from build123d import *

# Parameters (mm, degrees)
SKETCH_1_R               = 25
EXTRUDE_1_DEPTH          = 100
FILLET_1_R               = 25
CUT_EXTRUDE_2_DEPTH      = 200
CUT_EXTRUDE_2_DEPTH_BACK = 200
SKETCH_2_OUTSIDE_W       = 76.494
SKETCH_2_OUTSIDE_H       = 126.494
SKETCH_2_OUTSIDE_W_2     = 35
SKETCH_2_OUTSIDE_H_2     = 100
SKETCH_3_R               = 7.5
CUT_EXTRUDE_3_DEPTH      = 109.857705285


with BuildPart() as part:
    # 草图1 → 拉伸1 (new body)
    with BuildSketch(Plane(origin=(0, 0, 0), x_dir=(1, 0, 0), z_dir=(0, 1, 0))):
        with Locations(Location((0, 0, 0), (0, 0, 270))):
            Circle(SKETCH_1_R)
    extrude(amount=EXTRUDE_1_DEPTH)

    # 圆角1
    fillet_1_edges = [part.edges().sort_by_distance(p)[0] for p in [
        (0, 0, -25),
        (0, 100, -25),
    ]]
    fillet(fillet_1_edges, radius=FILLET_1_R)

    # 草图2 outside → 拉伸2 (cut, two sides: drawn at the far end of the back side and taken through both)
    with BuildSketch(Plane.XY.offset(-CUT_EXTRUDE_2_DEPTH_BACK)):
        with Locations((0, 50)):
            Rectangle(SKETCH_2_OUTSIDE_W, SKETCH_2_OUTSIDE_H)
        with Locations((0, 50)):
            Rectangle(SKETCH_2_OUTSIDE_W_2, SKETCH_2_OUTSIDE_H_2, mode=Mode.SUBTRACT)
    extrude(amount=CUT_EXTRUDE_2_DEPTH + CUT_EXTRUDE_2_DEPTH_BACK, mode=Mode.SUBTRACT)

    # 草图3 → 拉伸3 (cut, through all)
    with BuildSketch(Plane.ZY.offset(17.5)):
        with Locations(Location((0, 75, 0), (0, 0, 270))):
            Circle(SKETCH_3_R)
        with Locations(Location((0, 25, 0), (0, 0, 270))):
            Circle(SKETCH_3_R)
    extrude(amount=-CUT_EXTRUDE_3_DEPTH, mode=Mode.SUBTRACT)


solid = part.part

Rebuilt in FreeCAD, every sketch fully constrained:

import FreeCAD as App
import Part
import Sketcher
from FreeCAD import Vector
Q = App.Units.Quantity


def edges_at(feature, points):
    """Names of the edges that pass closest to the given points."""
    edges = feature.Shape.Edges
    near = lambda p: min(range(len(edges)), key=lambda i: edges[i].distToShape(Part.Vertex(*p))[0])
    return sorted({f"Edge{near(p) + 1}" for p in points})

doc = App.newDocument("Part")
body = doc.addObject("PartDesign::Body", "Body")

# Sketch on XZ plane
sketch1 = body.newObject("Sketcher::SketchObject", "Sketch")
sketch1.AttachmentSupport = (doc.getObject("XZ_Plane"), [""])
sketch1.MapMode = "FlatFace"
sketch1.addGeometry(Part.Circle(Vector(0, 0, 0), Vector(0, 0, 1), 25), False)
sketch1.addConstraint(Sketcher.Constraint("Coincident", 0, 3, -1, 1))
sketch1.addConstraint(Sketcher.Constraint("Diameter", 0, Q("50 mm")))
pad1 = body.newObject("PartDesign::Pad", "Pad")
pad1.Profile = sketch1
pad1.Length = 100
pad1.Reversed = True
doc.recompute()

fillet = body.newObject("PartDesign::Fillet", "Fillet")
fillet.Base = (pad1, edges_at(pad1, [(0, 0, -25), (0, 100, -25)]))
fillet.Radius = 25

# Sketch on XY plane
sketch2 = body.newObject("Sketcher::SketchObject", "Sketch001")
sketch2.AttachmentSupport = (doc.getObject("XY_Plane"), [""])
sketch2.MapMode = "FlatFace"
sketch2.addGeometry(Part.LineSegment(Vector(-38.247, 113.247, 0), Vector(-38.247, -13.247, 0)), False)
sketch2.addGeometry(Part.LineSegment(Vector(-38.247, -13.247, 0), Vector(38.247, -13.247, 0)), False)
sketch2.addGeometry(Part.LineSegment(Vector(38.247, -13.247, 0), Vector(38.247, 113.247, 0)), False)
sketch2.addGeometry(Part.LineSegment(Vector(38.247, 113.247, 0), Vector(-38.247, 113.247, 0)), False)
sketch2.addGeometry(Part.LineSegment(Vector(17.5, 0, 0), Vector(-17.5, 0, 0)), False)
sketch2.addGeometry(Part.LineSegment(Vector(-17.5, 0, 0), Vector(-17.5, 100, 0)), False)
sketch2.addGeometry(Part.LineSegment(Vector(-17.5, 100, 0), Vector(17.5, 100, 0)), False)
sketch2.addGeometry(Part.LineSegment(Vector(17.5, 100, 0), Vector(17.5, 0, 0)), False)
sketch2.addConstraint(Sketcher.Constraint("Coincident", 0, 2, 1, 1))
sketch2.addConstraint(Sketcher.Constraint("Coincident", 1, 2, 2, 1))
sketch2.addConstraint(Sketcher.Constraint("Coincident", 2, 2, 3, 1))
sketch2.addConstraint(Sketcher.Constraint("Coincident", 3, 2, 0, 1))
sketch2.addConstraint(Sketcher.Constraint("Coincident", 4, 2, 5, 1))
sketch2.addConstraint(Sketcher.Constraint("Coincident", 5, 2, 6, 1))
sketch2.addConstraint(Sketcher.Constraint("Coincident", 6, 2, 7, 1))
sketch2.addConstraint(Sketcher.Constraint("Coincident", 7, 2, 4, 1))
sketch2.addConstraint(Sketcher.Constraint("Vertical", 0))
sketch2.addConstraint(Sketcher.Constraint("Horizontal", 1))
sketch2.addConstraint(Sketcher.Constraint("Vertical", 2))
sketch2.addConstraint(Sketcher.Constraint("Horizontal", 3))
sketch2.addConstraint(Sketcher.Constraint("Horizontal", 4))
sketch2.addConstraint(Sketcher.Constraint("Vertical", 5))
sketch2.addConstraint(Sketcher.Constraint("Horizontal", 6))
sketch2.addConstraint(Sketcher.Constraint("Vertical", 7))
sketch2.addConstraint(Sketcher.Constraint("Symmetric", 4, 2, 7, 2, -1, 1))
sketch2.addConstraint(Sketcher.Constraint("DistanceX", 4, 2, 4, 1, Q("35 mm")))
sketch2.addConstraint(Sketcher.Constraint("DistanceY", 5, 1, 5, 2, Q("100 mm")))
sketch2.addConstraint(Sketcher.Constraint("DistanceX", 1, 1, 1, 2, Q("76.494 mm")))
sketch2.addConstraint(Sketcher.Constraint("DistanceY", 0, 2, 0, 1, Q("126.494 mm")))
sketch2.addConstraint(Sketcher.Constraint("DistanceX", 0, 2, -1, 1, Q("38.247 mm")))
sketch2.addConstraint(Sketcher.Constraint("DistanceY", 0, 2, -1, 1, Q("13.247 mm")))
pocket1 = body.newObject("PartDesign::Pocket", "Pocket")
pocket1.Profile = sketch2
pocket1.Type = "ThroughAll"
pocket1.Midplane = True

# Sketch on YZ plane
sketch3 = body.newObject("Sketcher::SketchObject", "Sketch002")
sketch3.AttachmentSupport = (doc.getObject("YZ_Plane"), [""])
sketch3.MapMode = "FlatFace"
sketch3.AttachmentOffset = App.Placement(Vector(0, 0, -17.5), App.Rotation())
sketch3.addGeometry(Part.Circle(Vector(75, 0, 0), Vector(0, 0, 1), 7.5), False)
sketch3.addGeometry(Part.Circle(Vector(25, 0, 0), Vector(0, 0, 1), 7.5), False)
sketch3.addConstraint(Sketcher.Constraint("Equal", 0, 1))
sketch3.addConstraint(Sketcher.Constraint("PointOnObject", 0, 3, -1))
sketch3.addConstraint(Sketcher.Constraint("PointOnObject", 1, 3, -1))
sketch3.addConstraint(Sketcher.Constraint("Diameter", 0, Q("15 mm")))
sketch3.addConstraint(Sketcher.Constraint("DistanceX", -1, 1, 0, 3, Q("75 mm")))
sketch3.addConstraint(Sketcher.Constraint("DistanceX", -1, 1, 1, 3, Q("25 mm")))
pocket2 = body.newObject("PartDesign::Pocket", "Pocket001")
pocket2.Profile = sketch3
pocket2.Type = "ThroughAll"
pocket2.Reversed = True

doc.recompute()
